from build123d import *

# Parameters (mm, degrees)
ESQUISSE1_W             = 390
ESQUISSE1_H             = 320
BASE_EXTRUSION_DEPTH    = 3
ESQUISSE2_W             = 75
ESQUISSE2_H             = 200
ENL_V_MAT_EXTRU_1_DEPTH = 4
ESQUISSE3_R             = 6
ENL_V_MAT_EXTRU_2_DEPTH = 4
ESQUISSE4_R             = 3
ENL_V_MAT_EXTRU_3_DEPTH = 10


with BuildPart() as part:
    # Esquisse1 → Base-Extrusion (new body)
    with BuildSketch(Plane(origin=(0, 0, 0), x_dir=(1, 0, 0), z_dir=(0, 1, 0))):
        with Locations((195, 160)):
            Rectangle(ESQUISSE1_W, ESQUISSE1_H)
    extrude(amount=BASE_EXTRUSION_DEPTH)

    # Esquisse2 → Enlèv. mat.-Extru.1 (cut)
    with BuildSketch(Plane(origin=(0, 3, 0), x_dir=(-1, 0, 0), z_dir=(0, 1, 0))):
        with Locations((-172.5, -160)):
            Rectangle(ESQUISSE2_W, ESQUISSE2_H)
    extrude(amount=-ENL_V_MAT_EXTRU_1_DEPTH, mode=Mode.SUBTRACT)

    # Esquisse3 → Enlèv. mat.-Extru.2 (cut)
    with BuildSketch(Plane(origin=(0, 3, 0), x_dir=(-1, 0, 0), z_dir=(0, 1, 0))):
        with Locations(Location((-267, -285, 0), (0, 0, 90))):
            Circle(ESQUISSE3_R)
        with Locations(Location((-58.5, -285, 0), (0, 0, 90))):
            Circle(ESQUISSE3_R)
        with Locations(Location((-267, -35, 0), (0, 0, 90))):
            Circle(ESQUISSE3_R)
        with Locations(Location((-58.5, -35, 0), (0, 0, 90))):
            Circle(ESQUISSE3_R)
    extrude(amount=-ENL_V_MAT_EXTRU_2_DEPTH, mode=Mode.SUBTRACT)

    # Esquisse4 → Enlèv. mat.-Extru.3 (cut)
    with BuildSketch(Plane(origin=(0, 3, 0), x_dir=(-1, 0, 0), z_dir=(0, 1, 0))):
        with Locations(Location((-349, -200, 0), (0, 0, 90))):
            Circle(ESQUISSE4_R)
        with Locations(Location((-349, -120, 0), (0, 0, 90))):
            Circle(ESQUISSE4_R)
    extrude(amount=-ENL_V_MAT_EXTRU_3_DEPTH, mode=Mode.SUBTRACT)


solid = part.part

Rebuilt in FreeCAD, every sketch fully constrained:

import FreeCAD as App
import Part
import Sketcher

V = App.Vector


def add_polygon(sketch, points):
    """Adds a closed chain of lines whose ends are joined by coincident constraints."""
    first, n = sketch.GeometryCount, len(points)
    for a, b in zip(points, points[1:] + points[:1]):
        sketch.addGeometry(Part.LineSegment(App.Vector(*a, 0), App.Vector(*b, 0)), False)
    for i in range(n):
        sketch.addConstraint(Sketcher.Constraint("Coincident", first + i, 2, first + (i + 1) % n, 1))

doc = App.newDocument("Part")
body = doc.addObject("PartDesign::Body", "Body")

# Sketch on XZ plane
sketch1 = doc.addObject("Sketcher::SketchObject", "Sketch")
body.addObject(sketch1)
sketch1.AttachmentSupport = (doc.XZ_Plane, [""])
sketch1.MapMode = "FlatFace"
add_polygon(sketch1, [(0, -320), (0, 0), (390, 0), (390, -320)])  # lines 0-3
sketch1.addConstraint(Sketcher.Constraint("Vertical", 0))
sketch1.addConstraint(Sketcher.Constraint("Horizontal", 1))
sketch1.addConstraint(Sketcher.Constraint("Vertical", 2))
sketch1.addConstraint(Sketcher.Constraint("Horizontal", 3))
sketch1.addConstraint(Sketcher.Constraint("Coincident", 0, 2, -1, 1))
sketch1.addConstraint(Sketcher.Constraint("DistanceX", 1, 1, 1, 2, 390.0))
sketch1.addConstraint(Sketcher.Constraint("DistanceY", 0, 1, 0, 2, 320.0))
pad1 = doc.addObject("PartDesign::Pad", "Pad")
body.addObject(pad1)
pad1.Profile = sketch1
pad1.Length = 3
pad1.Reversed = True

# Sketch on XZ plane
sketch2 = doc.addObject("Sketcher::SketchObject", "Sketch001")
body.addObject(sketch2)
sketch2.AttachmentSupport = (doc.XZ_Plane, [""])
sketch2.MapMode = "FlatFace"
sketch2.AttachmentOffset = App.Placement(V(0, 0, -3), App.Rotation())
add_polygon(sketch2, [(210, -60), (210, -260), (135, -260), (135, -60)])  # lines 0-3
sketch2.addConstraint(Sketcher.Constraint("Vertical", 0))
sketch2.addConstraint(Sketcher.Constraint("Horizontal", 1))
sketch2.addConstraint(Sketcher.Constraint("Vertical", 2))
sketch2.addConstraint(Sketcher.Constraint("Horizontal", 3))
sketch2.addConstraint(Sketcher.Constraint("DistanceX", 1, 2, 1, 1, 75.0))
sketch2.addConstraint(Sketcher.Constraint("DistanceY", 0, 2, 0, 1, 200.0))
sketch2.addConstraint(Sketcher.Constraint("DistanceX", -1, 1, 0, 2, 210.0))
sketch2.addConstraint(Sketcher.Constraint("DistanceY", 0, 2, -1, 1, 260.0))
pocket1 = doc.addObject("PartDesign::Pocket", "Pocket")
body.addObject(pocket1)
pocket1.Profile = sketch2
pocket1.Length = 4
pocket1.Reversed = True

# Sketch on XZ plane
sketch3 = doc.addObject("Sketcher::SketchObject", "Sketch002")
body.addObject(sketch3)
sketch3.AttachmentSupport = (doc.XZ_Plane, [""])
sketch3.MapMode = "FlatFace"
sketch3.AttachmentOffset = App.Placement(V(0, 0, -3), App.Rotation())
sketch3.addGeometry(Part.Circle(V(267, -285, 0), V(0, 0, 1), 6), False)
sketch3.addGeometry(Part.Circle(V(58.5, -285, 0), V(0, 0, 1), 6), False)
sketch3.addGeometry(Part.Circle(V(267, -35, 0), V(0, 0, 1), 6), False)
sketch3.addGeometry(Part.Circle(V(58.5, -35, 0), V(0, 0, 1), 6), False)
sketch3.addConstraint(Sketcher.Constraint("Equal", 0, 1))
sketch3.addConstraint(Sketcher.Constraint("Equal", 1, 2))
sketch3.addConstraint(Sketcher.Constraint("Equal", 2, 3))
sketch3.addConstraint(Sketcher.Constraint("Horizontal", 0, 3, 1, 3))
sketch3.addConstraint(Sketcher.Constraint("Horizontal", 2, 3, 3, 3))
sketch3.addConstraint(Sketcher.Constraint("Vertical", 0, 3, 2, 3))
sketch3.addConstraint(Sketcher.Constraint("Vertical", 1, 3, 3, 3))
sketch3.addConstraint(Sketcher.Constraint("Diameter", 0, 12.0))
sketch3.addConstraint(Sketcher.Constraint("DistanceX", -1, 1, 0, 3, 267.0))
sketch3.addConstraint(Sketcher.Constraint("DistanceY", 0, 3, -1, 1, 285.0))
sketch3.addConstraint(Sketcher.Constraint("DistanceY", 2, 3, -1, 1, 35.0))
sketch3.addConstraint(Sketcher.Constraint("DistanceX", -1, 1, 1, 3, 58.5))
pocket2 = doc.addObject("PartDesign::Pocket", "Pocket001")
body.addObject(pocket2)
pocket2.Profile = sketch3
pocket2.Length = 4
pocket2.Reversed = True

# Sketch on XZ plane
sketch4 = doc.addObject("Sketcher::SketchObject", "Sketch003")
body.addObject(sketch4)
sketch4.AttachmentSupport = (doc.XZ_Plane, [""])
sketch4.MapMode = "FlatFace"
sketch4.AttachmentOffset = App.Placement(V(0, 0, -3), App.Rotation())
sketch4.addGeometry(Part.Circle(V(349, -200, 0), V(0, 0, 1), 3), False)
sketch4.addGeometry(Part.Circle(V(349, -120, 0), V(0, 0, 1), 3), False)
sketch4.addConstraint(Sketcher.Constraint("Equal", 0, 1))
sketch4.addConstraint(Sketcher.Constraint("Vertical", 0, 3, 1, 3))
sketch4.addConstraint(Sketcher.Constraint("Diameter", 0, 6.0))
sketch4.addConstraint(Sketcher.Constraint("DistanceX", -1, 1, 0, 3, 349.0))
sketch4.addConstraint(Sketcher.Constraint("DistanceY", 0, 3, -1, 1, 200.0))
sketch4.addConstraint(Sketcher.Constraint("DistanceY", 1, 3, -1, 1, 120.0))
pocket3 = doc.addObject("PartDesign::Pocket", "Pocket002")
body.addObject(pocket3)
pocket3.Profile = sketch4
pocket3.Length = 10
pocket3.Reversed = True

doc.recompute()
